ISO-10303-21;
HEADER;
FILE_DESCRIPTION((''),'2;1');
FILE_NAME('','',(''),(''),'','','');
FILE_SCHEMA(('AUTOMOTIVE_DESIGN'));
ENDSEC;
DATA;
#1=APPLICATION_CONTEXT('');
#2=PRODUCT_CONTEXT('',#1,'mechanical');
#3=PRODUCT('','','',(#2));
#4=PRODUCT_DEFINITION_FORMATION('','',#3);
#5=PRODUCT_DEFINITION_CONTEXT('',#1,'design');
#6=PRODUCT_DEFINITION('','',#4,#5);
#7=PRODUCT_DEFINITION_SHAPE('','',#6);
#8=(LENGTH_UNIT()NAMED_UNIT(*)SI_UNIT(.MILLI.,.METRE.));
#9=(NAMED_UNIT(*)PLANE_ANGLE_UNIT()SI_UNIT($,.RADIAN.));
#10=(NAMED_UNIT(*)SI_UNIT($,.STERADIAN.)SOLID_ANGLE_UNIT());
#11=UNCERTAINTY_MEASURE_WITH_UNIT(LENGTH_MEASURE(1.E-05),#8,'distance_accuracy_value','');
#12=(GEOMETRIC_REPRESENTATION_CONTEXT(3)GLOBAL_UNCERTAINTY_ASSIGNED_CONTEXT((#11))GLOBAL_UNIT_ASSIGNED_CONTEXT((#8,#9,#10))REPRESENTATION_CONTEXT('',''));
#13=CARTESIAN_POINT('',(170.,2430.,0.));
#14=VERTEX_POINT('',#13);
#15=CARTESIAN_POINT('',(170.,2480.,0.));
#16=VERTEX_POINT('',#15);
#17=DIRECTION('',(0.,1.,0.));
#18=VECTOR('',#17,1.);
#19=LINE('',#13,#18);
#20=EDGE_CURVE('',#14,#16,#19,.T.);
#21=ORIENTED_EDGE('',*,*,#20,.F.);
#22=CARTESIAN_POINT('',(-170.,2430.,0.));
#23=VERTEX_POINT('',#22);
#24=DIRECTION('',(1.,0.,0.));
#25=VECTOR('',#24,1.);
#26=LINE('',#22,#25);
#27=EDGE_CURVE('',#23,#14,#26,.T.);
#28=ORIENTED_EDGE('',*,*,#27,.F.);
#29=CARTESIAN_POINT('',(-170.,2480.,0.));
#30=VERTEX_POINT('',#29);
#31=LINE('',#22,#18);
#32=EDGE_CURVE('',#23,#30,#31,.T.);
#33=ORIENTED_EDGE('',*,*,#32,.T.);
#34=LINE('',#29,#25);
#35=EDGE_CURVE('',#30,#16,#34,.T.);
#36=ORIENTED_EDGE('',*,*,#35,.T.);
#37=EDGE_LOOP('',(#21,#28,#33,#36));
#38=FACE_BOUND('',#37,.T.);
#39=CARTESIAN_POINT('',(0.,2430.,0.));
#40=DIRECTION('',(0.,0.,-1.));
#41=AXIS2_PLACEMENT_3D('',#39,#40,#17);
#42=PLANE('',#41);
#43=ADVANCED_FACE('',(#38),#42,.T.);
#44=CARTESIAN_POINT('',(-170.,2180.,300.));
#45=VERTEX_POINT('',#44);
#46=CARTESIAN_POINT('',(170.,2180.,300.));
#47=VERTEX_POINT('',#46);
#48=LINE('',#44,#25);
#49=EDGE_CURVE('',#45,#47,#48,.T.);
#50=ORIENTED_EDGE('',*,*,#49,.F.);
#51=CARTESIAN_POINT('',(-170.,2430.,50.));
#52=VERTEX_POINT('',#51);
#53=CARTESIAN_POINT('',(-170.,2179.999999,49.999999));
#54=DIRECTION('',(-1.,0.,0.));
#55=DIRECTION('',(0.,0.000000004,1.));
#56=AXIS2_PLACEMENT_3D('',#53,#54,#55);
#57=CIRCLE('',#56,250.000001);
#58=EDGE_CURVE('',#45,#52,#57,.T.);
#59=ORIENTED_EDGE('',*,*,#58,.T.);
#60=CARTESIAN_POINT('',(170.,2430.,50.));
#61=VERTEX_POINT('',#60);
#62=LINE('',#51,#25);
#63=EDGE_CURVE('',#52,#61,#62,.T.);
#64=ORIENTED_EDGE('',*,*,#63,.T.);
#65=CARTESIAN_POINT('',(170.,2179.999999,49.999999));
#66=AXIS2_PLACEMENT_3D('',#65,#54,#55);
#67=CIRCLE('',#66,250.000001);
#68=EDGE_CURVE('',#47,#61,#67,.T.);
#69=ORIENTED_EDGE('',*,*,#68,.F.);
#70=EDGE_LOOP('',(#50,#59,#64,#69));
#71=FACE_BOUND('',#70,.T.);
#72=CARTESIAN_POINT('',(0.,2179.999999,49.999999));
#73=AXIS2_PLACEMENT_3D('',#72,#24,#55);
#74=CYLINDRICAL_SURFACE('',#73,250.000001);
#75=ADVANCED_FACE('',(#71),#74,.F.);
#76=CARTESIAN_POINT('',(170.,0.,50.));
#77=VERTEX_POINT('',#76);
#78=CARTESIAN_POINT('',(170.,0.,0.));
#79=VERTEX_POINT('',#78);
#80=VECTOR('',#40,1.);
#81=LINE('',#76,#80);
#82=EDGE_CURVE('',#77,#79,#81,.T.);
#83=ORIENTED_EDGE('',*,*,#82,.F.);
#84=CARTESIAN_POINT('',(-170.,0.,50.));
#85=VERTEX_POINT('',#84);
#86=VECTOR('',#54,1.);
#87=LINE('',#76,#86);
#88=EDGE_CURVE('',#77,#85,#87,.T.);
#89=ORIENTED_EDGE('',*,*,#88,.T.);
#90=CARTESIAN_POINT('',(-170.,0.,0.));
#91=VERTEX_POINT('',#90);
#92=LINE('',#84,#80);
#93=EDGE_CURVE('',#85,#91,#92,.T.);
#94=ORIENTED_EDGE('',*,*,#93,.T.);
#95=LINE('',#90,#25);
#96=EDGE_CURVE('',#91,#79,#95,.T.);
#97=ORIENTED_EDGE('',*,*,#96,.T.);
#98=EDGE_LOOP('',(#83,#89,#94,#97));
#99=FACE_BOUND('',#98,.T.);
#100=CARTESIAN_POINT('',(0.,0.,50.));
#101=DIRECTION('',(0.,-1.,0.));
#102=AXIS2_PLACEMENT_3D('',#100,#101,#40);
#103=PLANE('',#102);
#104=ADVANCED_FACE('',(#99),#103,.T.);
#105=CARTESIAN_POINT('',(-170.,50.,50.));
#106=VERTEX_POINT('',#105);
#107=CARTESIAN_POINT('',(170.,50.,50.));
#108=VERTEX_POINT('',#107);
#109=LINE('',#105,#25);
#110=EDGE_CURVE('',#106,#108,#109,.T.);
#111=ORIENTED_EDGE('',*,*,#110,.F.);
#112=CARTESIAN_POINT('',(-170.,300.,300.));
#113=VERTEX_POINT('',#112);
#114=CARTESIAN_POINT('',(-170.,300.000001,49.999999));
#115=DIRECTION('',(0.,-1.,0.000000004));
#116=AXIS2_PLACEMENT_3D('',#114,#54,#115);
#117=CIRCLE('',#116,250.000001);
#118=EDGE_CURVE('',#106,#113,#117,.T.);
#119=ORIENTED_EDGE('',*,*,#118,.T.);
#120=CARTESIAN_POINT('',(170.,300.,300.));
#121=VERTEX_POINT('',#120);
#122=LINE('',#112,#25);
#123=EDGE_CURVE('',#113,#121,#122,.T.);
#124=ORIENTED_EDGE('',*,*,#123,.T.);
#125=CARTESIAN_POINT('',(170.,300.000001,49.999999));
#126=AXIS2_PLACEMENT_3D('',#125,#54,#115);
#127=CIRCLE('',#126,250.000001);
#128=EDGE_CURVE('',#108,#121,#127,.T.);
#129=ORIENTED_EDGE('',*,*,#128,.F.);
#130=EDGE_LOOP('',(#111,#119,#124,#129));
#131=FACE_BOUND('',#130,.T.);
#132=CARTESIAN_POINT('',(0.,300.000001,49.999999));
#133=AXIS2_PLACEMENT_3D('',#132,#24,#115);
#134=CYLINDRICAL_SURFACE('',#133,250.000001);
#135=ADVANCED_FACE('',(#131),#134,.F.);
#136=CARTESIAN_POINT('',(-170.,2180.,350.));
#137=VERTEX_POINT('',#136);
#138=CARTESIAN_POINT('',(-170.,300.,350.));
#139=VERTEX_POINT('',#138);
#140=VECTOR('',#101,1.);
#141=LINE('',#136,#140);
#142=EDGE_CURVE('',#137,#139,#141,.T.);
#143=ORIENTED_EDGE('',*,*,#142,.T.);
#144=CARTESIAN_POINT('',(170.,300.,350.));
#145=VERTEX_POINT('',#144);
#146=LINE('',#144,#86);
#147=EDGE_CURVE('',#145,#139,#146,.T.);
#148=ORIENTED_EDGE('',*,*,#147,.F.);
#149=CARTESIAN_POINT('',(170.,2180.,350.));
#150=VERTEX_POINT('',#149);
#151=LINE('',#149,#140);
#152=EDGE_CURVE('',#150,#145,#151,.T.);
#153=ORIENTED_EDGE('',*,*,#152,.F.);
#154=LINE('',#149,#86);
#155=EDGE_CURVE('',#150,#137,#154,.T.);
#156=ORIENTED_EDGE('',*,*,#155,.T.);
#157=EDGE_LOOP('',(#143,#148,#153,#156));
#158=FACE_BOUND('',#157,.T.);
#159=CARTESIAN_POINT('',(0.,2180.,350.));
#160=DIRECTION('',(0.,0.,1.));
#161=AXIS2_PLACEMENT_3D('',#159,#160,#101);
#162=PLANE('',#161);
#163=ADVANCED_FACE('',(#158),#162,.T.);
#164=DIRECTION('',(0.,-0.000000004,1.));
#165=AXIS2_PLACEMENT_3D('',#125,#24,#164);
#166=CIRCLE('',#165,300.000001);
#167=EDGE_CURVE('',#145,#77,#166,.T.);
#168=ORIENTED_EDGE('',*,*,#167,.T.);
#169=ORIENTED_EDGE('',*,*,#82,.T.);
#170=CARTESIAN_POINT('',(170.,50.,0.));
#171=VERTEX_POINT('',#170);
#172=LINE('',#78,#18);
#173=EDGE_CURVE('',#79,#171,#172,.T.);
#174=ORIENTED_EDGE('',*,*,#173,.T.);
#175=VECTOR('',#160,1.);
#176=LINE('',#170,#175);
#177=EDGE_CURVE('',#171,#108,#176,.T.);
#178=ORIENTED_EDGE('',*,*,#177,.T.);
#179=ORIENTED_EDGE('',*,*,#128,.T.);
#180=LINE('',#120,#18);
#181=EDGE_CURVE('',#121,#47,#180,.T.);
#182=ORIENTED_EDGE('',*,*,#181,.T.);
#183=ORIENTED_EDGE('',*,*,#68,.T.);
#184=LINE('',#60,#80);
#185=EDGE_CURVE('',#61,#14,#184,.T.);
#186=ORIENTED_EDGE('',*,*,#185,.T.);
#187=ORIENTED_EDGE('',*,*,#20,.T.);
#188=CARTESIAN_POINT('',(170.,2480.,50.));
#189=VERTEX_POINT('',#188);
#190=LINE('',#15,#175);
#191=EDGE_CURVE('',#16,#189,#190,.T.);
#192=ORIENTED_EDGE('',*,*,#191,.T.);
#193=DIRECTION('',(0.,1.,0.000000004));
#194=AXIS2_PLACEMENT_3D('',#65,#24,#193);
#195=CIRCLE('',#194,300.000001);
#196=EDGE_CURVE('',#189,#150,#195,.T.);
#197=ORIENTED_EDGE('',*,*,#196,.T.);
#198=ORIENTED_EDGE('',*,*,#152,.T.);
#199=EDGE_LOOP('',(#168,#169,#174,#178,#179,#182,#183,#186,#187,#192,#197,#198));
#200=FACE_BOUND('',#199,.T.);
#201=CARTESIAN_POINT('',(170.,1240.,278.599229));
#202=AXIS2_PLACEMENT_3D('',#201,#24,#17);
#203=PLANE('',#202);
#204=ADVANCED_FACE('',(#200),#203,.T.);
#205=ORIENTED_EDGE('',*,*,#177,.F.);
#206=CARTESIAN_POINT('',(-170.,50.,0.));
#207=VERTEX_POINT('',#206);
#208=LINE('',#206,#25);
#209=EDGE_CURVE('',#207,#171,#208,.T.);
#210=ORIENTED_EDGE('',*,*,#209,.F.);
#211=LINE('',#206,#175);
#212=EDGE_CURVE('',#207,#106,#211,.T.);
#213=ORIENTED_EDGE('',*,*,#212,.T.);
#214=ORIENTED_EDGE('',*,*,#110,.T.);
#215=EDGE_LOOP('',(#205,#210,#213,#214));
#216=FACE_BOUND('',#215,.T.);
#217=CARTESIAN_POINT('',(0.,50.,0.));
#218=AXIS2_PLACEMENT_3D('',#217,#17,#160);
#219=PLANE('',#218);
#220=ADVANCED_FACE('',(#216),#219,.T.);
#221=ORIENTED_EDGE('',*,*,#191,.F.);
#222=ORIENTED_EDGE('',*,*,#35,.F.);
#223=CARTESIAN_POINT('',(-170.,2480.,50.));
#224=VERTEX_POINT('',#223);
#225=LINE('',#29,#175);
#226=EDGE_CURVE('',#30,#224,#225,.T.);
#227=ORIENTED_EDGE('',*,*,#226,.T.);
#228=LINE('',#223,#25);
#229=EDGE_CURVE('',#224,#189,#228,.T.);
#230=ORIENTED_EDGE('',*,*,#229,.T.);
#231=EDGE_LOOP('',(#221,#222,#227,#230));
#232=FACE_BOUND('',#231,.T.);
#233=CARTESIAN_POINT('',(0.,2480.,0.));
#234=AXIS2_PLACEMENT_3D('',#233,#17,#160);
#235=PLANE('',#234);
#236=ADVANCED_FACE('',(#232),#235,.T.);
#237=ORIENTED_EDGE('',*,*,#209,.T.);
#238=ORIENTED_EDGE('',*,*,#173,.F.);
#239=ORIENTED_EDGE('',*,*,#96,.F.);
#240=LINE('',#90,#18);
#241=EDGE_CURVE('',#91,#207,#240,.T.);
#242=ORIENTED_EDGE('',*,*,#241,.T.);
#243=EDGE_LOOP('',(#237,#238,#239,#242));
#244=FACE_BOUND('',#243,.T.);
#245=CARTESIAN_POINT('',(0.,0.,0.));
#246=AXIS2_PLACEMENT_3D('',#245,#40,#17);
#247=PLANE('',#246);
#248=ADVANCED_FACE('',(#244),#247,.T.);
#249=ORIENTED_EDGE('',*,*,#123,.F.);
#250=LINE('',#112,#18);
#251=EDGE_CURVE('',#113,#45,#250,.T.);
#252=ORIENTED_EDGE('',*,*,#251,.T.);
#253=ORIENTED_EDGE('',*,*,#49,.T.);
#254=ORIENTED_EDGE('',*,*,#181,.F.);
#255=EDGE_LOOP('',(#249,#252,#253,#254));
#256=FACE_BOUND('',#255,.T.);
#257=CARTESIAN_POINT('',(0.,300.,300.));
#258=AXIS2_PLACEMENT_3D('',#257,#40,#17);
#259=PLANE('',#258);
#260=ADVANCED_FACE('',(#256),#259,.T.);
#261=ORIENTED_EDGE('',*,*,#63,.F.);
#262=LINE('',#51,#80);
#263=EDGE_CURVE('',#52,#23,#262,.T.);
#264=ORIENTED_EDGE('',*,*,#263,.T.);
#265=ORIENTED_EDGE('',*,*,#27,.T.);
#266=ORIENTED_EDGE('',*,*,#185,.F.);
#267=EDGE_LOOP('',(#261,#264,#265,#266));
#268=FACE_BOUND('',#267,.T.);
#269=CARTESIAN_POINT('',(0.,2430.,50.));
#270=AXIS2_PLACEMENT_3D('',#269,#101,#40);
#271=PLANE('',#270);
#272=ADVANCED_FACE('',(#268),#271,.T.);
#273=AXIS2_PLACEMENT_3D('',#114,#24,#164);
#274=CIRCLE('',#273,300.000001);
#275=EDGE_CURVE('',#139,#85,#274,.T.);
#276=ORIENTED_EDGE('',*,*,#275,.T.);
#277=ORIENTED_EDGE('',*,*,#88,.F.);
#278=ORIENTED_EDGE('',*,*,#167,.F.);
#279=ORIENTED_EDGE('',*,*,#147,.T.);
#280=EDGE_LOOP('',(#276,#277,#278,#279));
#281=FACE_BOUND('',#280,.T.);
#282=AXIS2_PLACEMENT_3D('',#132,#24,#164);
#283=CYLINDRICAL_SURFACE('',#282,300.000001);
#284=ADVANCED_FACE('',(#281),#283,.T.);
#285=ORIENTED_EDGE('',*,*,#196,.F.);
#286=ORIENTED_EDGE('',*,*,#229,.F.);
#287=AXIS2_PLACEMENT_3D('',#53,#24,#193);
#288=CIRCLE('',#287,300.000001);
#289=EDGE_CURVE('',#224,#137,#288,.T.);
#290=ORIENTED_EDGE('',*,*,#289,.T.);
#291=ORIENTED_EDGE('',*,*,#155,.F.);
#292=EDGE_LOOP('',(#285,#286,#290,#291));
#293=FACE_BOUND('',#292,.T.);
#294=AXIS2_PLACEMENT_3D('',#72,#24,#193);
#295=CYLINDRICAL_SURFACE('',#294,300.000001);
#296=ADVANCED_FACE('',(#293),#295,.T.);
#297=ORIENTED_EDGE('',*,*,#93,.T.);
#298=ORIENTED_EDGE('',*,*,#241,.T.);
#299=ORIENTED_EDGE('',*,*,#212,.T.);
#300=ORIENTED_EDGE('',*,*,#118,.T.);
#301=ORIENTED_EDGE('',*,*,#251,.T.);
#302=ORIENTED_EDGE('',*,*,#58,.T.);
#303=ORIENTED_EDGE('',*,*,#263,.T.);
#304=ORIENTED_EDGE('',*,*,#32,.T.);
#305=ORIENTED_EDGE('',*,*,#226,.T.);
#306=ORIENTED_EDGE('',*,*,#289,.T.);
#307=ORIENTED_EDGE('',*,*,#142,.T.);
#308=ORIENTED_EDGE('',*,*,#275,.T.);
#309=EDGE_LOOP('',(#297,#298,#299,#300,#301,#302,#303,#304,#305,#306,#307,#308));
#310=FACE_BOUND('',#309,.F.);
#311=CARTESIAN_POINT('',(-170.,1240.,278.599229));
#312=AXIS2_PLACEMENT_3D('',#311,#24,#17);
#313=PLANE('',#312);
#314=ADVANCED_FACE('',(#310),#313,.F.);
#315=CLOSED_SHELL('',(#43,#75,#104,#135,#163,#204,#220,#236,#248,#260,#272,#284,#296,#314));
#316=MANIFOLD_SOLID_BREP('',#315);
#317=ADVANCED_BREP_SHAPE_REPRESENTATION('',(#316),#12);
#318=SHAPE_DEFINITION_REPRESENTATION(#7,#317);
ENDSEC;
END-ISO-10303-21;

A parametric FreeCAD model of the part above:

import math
import FreeCAD as App
import Part
import Sketcher

V = App.Vector

doc = App.newDocument("Part")
body = doc.addObject("PartDesign::Body", "Body")

sketch1 = doc.addObject("Sketcher::SketchObject", "Sketch")
body.addObject(sketch1)
sketch1.AttachmentSupport = (doc.YZ_Plane, [""])
sketch1.MapMode = "FlatFace"
sketch1.addGeometry(Part.LineSegment(V(0, 50, 0), V(0, 0, 0)), False)
sketch1.addGeometry(Part.LineSegment(V(0, 0, 0), V(50, 0, 0)), False)
sketch1.addGeometry(Part.LineSegment(V(50, 0, 0), V(50, 50, 0)), False)
sketch1.addGeometry(Part.ArcOfCircle(Part.Circle(V(300.000001, 49.999999, 0), V(0, 0, 1), 250.000001), math.radians(90), math.radians(180)), False)
sketch1.addGeometry(Part.LineSegment(V(300, 300, 0), V(2180, 300, 0)), False)
sketch1.addGeometry(Part.ArcOfCircle(Part.Circle(V(2179.999999, 49.999999, 0), V(0, 0, 1), 250.000001), math.radians(0), math.radians(90)), False)
sketch1.addGeometry(Part.LineSegment(V(2430, 50, 0), V(2430, 0, 0)), False)
sketch1.addGeometry(Part.LineSegment(V(2430, 0, 0), V(2480, 0, 0)), False)
sketch1.addGeometry(Part.LineSegment(V(2480, 0, 0), V(2480, 50, 0)), False)
sketch1.addGeometry(Part.ArcOfCircle(Part.Circle(V(2179.999999, 49.999999, 0), V(0, 0, 1), 300.000001), math.radians(0), math.radians(90)), False)
sketch1.addGeometry(Part.LineSegment(V(2180, 350, 0), V(300, 350, 0)), False)
sketch1.addGeometry(Part.ArcOfCircle(Part.Circle(V(300.000001, 49.999999, 0), V(0, 0, 1), 300.000001), math.radians(90), math.radians(180)), False)
sketch1.addConstraint(Sketcher.Constraint("Coincident", 0, 2, 1, 1))
sketch1.addConstraint(Sketcher.Constraint("Coincident", 1, 2, 2, 1))
sketch1.addConstraint(Sketcher.Constraint("Tangent", 2, 2, 3, 2))
sketch1.addConstraint(Sketcher.Constraint("Tangent", 3, 1, 4, 1))
sketch1.addConstraint(Sketcher.Constraint("Tangent", 4, 2, 5, 2))
sketch1.addConstraint(Sketcher.Constraint("Tangent", 5, 1, 6, 1))
sketch1.addConstraint(Sketcher.Constraint("Coincident", 6, 2, 7, 1))
sketch1.addConstraint(Sketcher.Constraint("Coincident", 7, 2, 8, 1))
sketch1.addConstraint(Sketcher.Constraint("Tangent", 8, 2, 9, 1))
sketch1.addConstraint(Sketcher.Constraint("Tangent", 9, 2, 10, 1))
sketch1.addConstraint(Sketcher.Constraint("Tangent", 10, 2, 11, 1))
sketch1.addConstraint(Sketcher.Constraint("Tangent", 11, 2, 0, 1))
sketch1.addConstraint(Sketcher.Constraint("Vertical", 0))
sketch1.addConstraint(Sketcher.Constraint("Horizontal", 1))
sketch1.addConstraint(Sketcher.Constraint("Vertical", 2))
sketch1.addConstraint(Sketcher.Constraint("Horizontal", 4))
sketch1.addConstraint(Sketcher.Constraint("Vertical", 6))
sketch1.addConstraint(Sketcher.Constraint("Horizontal", 7))
sketch1.addConstraint(Sketcher.Constraint("Vertical", 8))
sketch1.addConstraint(Sketcher.Constraint("Horizontal", 10))
sketch1.addConstraint(Sketcher.Constraint("Coincident", 0, 2, -1, 1))
sketch1.addConstraint(Sketcher.Constraint("Coincident", 9, 3, 5, 3))
sketch1.addConstraint(Sketcher.Constraint("Coincident", 11, 3, 3, 3))
sketch1.addConstraint(Sketcher.Constraint("Equal", 3, 5))
sketch1.addConstraint(Sketcher.Constraint("PointOnObject", 6, 2, -1))
sketch1.addConstraint(Sketcher.Constraint("Equal", 7, 0))
sketch1.addConstraint(Sketcher.Constraint("Radius", 3, 250.000001))
sketch1.addConstraint(Sketcher.Constraint("Radius", 9, 300.000001))
sketch1.addConstraint(Sketcher.Constraint("DistanceX", 4, 1, 4, 2, 1880.0))
pad1 = doc.addObject("PartDesign::Pad", "Pad")
body.addObject(pad1)
pad1.Profile = sketch1
pad1.Length = 340
pad1.Midplane = True

doc.recompute()
